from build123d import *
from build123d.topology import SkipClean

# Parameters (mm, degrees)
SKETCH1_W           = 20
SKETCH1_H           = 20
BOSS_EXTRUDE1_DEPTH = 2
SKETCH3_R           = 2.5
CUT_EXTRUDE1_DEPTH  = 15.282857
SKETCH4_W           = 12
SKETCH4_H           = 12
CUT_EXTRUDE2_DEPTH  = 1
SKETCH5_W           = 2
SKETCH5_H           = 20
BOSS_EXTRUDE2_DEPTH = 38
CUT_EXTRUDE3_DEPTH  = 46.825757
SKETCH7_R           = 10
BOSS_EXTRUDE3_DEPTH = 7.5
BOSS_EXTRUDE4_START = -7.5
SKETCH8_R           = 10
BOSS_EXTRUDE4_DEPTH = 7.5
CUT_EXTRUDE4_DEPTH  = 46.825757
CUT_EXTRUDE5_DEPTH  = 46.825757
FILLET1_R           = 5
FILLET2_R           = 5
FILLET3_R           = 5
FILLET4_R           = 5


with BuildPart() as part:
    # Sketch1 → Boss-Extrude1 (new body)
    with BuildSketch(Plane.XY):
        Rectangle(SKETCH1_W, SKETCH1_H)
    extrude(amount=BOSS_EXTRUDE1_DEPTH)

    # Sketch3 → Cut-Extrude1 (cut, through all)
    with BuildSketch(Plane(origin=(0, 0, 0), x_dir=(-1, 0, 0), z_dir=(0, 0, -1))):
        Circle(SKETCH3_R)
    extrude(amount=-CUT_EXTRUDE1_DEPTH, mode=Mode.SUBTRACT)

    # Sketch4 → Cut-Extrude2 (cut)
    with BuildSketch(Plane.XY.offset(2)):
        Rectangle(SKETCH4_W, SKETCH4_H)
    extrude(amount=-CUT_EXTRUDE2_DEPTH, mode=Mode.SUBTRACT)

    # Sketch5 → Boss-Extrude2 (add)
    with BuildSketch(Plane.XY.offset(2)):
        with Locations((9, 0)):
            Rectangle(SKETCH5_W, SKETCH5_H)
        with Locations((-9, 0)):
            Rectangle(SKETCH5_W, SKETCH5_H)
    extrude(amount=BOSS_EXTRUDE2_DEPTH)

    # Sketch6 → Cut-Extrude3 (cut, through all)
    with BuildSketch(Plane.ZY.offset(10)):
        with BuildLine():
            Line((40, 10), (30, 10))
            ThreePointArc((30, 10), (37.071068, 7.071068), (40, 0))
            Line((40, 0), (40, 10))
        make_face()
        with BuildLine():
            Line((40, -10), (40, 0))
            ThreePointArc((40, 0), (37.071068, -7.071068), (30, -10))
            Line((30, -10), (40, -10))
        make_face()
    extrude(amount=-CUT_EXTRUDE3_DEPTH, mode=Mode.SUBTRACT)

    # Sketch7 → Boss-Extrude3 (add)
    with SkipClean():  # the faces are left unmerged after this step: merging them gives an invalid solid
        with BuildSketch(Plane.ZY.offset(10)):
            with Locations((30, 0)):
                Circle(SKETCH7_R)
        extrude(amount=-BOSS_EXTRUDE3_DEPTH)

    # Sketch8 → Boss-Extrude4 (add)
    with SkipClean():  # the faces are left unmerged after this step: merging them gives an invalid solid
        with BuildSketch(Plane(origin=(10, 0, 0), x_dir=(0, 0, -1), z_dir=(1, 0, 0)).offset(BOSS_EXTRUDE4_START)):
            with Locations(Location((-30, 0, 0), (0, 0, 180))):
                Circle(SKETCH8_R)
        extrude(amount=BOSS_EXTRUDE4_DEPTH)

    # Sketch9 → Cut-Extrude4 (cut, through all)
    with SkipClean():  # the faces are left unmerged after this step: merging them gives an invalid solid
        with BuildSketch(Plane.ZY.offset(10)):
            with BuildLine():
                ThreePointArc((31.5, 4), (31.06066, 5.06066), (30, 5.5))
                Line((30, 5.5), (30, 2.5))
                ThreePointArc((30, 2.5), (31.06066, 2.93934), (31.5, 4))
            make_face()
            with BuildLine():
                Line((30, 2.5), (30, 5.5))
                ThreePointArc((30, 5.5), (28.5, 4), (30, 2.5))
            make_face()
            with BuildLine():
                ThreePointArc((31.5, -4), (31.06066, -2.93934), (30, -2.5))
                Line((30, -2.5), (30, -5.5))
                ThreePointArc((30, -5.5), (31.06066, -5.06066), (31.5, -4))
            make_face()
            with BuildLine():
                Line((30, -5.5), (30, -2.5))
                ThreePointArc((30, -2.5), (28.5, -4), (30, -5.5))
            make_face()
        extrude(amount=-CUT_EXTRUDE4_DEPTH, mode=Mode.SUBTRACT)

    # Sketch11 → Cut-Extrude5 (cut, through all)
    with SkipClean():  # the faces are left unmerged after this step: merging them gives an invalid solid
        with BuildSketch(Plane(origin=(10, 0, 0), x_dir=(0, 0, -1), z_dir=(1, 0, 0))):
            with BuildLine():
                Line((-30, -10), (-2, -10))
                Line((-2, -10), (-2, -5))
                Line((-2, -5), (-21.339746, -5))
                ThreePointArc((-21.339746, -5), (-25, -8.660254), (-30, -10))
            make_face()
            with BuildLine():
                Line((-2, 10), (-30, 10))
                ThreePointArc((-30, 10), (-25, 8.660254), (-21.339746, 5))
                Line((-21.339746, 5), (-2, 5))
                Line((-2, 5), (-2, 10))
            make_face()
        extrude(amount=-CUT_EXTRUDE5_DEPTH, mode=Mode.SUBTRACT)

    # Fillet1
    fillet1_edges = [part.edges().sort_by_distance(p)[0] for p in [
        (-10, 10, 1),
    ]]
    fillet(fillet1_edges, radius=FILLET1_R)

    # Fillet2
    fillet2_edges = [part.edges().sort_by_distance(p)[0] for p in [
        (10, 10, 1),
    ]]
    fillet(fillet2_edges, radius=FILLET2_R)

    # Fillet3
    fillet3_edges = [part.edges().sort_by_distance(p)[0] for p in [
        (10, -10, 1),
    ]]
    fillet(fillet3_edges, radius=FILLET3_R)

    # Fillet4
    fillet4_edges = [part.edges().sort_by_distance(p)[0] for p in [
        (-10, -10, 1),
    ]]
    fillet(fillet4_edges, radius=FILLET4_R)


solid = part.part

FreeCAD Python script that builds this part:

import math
import FreeCAD as App
import Part
import Sketcher


def edges_at(feature, points):
    """Names of the edges that pass closest to the given points."""
    edges = feature.Shape.Edges
    near = lambda p: min(range(len(edges)), key=lambda i: edges[i].distToShape(Part.Vertex(*p))[0])
    return sorted({f"Edge{near(p) + 1}" for p in points})


def add_polygon(sketch, points):
    """Adds a closed chain of lines whose ends are joined by coincident constraints."""
    first, n = sketch.GeometryCount, len(points)
    for a, b in zip(points, points[1:] + points[:1]):
        sketch.addGeometry(Part.LineSegment(App.Vector(*a, 0), App.Vector(*b, 0)), False)
    for i in range(n):
        sketch.addConstraint(Sketcher.Constraint("Coincident", first + i, 2, first + (i + 1) % n, 1))

doc = App.newDocument("Part")
params = doc.addObject("Spreadsheet::Sheet", "Params")
for row, (alias, value) in enumerate([
    ("sketch1_width", "20 mm"),
    ("pad1_length", "2 mm"),
    ("sketch2_diameter", "5 mm"),
    ("sketch3_width", "12 mm"),
    ("pocket2_length", "1 mm"),
    ("sketch4_width", "2 mm"),
    ("sketch4_height", "20 mm"),
    ("pad2_length", "38 mm"),
    ("sketch5_radius", "9.999999 mm"),
    ("sketch6_diameter", "20 mm"),
    ("pad3_length", "7.5 mm"),
    ("sketch7_diameter", "20 mm"),
    ("pad4_length", "7.5 mm"),
    ("sketch8_radius", "1.500001 mm"),
    ("sketch9_radius", "10 mm"),
    ("sketch9_width", "5 mm"),
    ("sketch9_height", "28 mm"),
    ("fillet_radius", "5 mm"),
    ("fillet2_radius", "5 mm"),
    ("fillet3_radius", "5 mm"),
    ("fillet4_radius", "5 mm"),
], start=1):
    params.set(f"A{row}", alias)
    params.set(f"B{row}", "=" + value)
    params.setAlias(f"B{row}", alias)

body = doc.addObject("PartDesign::Body", "Body")

# Sketch on XY plane
sketch1 = body.newObject("Sketcher::SketchObject", "Sketch")
sketch1.AttachmentSupport = (doc.getObject("XY_Plane"), [""])
sketch1.MapMode = "FlatFace"
add_polygon(sketch1, [(-10, 10), (-10, -10), (10, -10), (10, 10)])  # lines 0-3
sketch1.addConstraint([
    Sketcher.Constraint("Vertical", 0),
    Sketcher.Constraint("Horizontal", 1),
    Sketcher.Constraint("Vertical", 2),
    Sketcher.Constraint("Horizontal", 3),
    Sketcher.Constraint("Symmetric", 0, 2, 2, 2, -1, 1),
    Sketcher.Constraint("Equal", 3, 0),
    Sketcher.Constraint("DistanceX", 1, 1, 1, 2, 20.0),
])
sketch1.setExpression("Constraints[10]", "Params.sketch1_width")
pad1 = body.newObject("PartDesign::Pad", "Pad")
pad1.Profile = sketch1
pad1.setExpression("Length", "Params.pad1_length")

# Sketch on XY plane
sketch2 = body.newObject("Sketcher::SketchObject", "Sketch001")
sketch2.AttachmentSupport = (doc.getObject("XY_Plane"), [""])
sketch2.MapMode = "FlatFace"
sketch2.addGeometry(Part.Circle(App.Vector(0, 0, 0), App.Vector(0, 0, 1), 2.5), False)
sketch2.addConstraint([
    Sketcher.Constraint("Coincident", 0, 3, -1, 1),
    Sketcher.Constraint("Diameter", 0, 5.0),
])
sketch2.setExpression("Constraints[1]", "Params.sketch2_diameter")
pocket1 = body.newObject("PartDesign::Pocket", "Pocket")
pocket1.Profile = sketch2
pocket1.Type = "ThroughAll"
pocket1.Reversed = True

# Sketch on XY plane
sketch3 = body.newObject("Sketcher::SketchObject", "Sketch002")
sketch3.AttachmentSupport = (doc.getObject("XY_Plane"), [""])
sketch3.MapMode = "FlatFace"
sketch3.AttachmentOffset = App.Placement(App.Vector(0, 0, 2), App.Rotation())
add_polygon(sketch3, [(-6, 6), (-6, -6), (6, -6), (6, 6)])  # lines 0-3
sketch3.addConstraint([
    Sketcher.Constraint("Vertical", 0),
    Sketcher.Constraint("Horizontal", 1),
    Sketcher.Constraint("Vertical", 2),
    Sketcher.Constraint("Horizontal", 3),
    Sketcher.Constraint("Symmetric", 0, 2, 2, 2, -1, 1),
    Sketcher.Constraint("Equal", 3, 0),
    Sketcher.Constraint("DistanceX", 1, 1, 1, 2, 12.0),
])
sketch3.setExpression("Constraints[10]", "Params.sketch3_width")
pocket2 = body.newObject("PartDesign::Pocket", "Pocket001")
pocket2.Profile = sketch3
pocket2.setExpression("Length", "Params.pocket2_length")

# Sketch on XY plane
sketch4 = body.newObject("Sketcher::SketchObject", "Sketch003")
sketch4.AttachmentSupport = (doc.getObject("XY_Plane"), [""])
sketch4.MapMode = "FlatFace"
sketch4.AttachmentOffset = App.Placement(App.Vector(0, 0, 2), App.Rotation())
add_polygon(sketch4, [(8, 10), (8, -10), (10, -10), (10, 10)])  # lines 0-3
add_polygon(sketch4, [(-10, 10), (-10, -10), (-8, -10), (-8, 10)])  # lines 4-7
sketch4.addConstraint([
    Sketcher.Constraint("Vertical", 0),
    Sketcher.Constraint("Horizontal", 1),
    Sketcher.Constraint("Vertical", 2),
    Sketcher.Constraint("Horizontal", 3),
    Sketcher.Constraint("Vertical", 4),
    Sketcher.Constraint("Horizontal", 5),
    Sketcher.Constraint("Vertical", 6),
    Sketcher.Constraint("Horizontal", 7),
    Sketcher.Constraint("Symmetric", 2, 2, 4, 2, -1, 1),
    Sketcher.Constraint("Symmetric", 0, 2, 6, 2, -1, 1),
    Sketcher.Constraint("Horizontal", 1, 2, 4, 2),
    Sketcher.Constraint("DistanceX", 1, 1, 1, 2, 2.0),
    Sketcher.Constraint("DistanceY", 0, 2, 0, 1, 20.0),
    Sketcher.Constraint("DistanceX", -1, 1, 0, 2, 8.0),
])
sketch4.setExpression("Constraints[19]", "Params.sketch4_width")
sketch4.setExpression("Constraints[20]", "Params.sketch4_height")
pad2 = body.newObject("PartDesign::Pad", "Pad001")
pad2.Profile = sketch4
pad2.setExpression("Length", "Params.pad2_length")

# Sketch on YZ plane
sketch5 = body.newObject("Sketcher::SketchObject", "Sketch004")
sketch5.AttachmentSupport = (doc.getObject("YZ_Plane"), [""])
sketch5.MapMode = "FlatFace"
sketch5.AttachmentOffset = App.Placement(App.Vector(0, 0, -10), App.Rotation())
sketch5.addGeometry([
    Part.LineSegment(App.Vector(10, 40, 0), App.Vector(10, 30, 0)),  # 0
    Part.ArcOfCircle(Part.Circle(App.Vector(0, 30, 0), App.Vector(0, 0, 1), 10), math.radians(0), math.radians(90)),  # 1
    Part.LineSegment(App.Vector(0, 40, 0), App.Vector(10, 40, 0)),  # 2
    Part.LineSegment(App.Vector(-10, 40, 0), App.Vector(0, 40, 0)),  # 3
    Part.ArcOfCircle(Part.Circle(App.Vector(0, 30, 0), App.Vector(0, 0, 1), 10), math.radians(90), math.radians(180)),  # 4
    Part.LineSegment(App.Vector(-10, 30, 0), App.Vector(-10, 40, 0)),  # 5
], False)
sketch5.addConstraint([
    Sketcher.Constraint("Tangent", 0, 2, 1, 1),
    Sketcher.Constraint("Tangent", 1, 2, 2, 1),
    Sketcher.Constraint("Coincident", 2, 2, 0, 1),
    Sketcher.Constraint("Tangent", 3, 2, 4, 1),
    Sketcher.Constraint("Tangent", 4, 2, 5, 1),
    Sketcher.Constraint("Coincident", 5, 2, 3, 1),
    Sketcher.Constraint("Vertical", 0),
    Sketcher.Constraint("Horizontal", 2),
    Sketcher.Constraint("Horizontal", 3),
    Sketcher.Constraint("Vertical", 5),
    Sketcher.Constraint("Coincident", 4, 3, 1, 3),
    Sketcher.Constraint("Equal", 1, 4),
    Sketcher.Constraint("PointOnObject", 1, 3, -2),
    Sketcher.Constraint("Radius", 1, 9.999999),
    Sketcher.Constraint("DistanceY", -1, 1, 1, 3, 30.000001),
])
sketch5.setExpression("Constraints[13]", "Params.sketch5_radius")
pocket3 = body.newObject("PartDesign::Pocket", "Pocket002")
pocket3.Profile = sketch5
pocket3.Type = "ThroughAll"
pocket3.Reversed = True

# Sketch on YZ plane
sketch6 = body.newObject("Sketcher::SketchObject", "Sketch005")
sketch6.AttachmentSupport = (doc.getObject("YZ_Plane"), [""])
sketch6.MapMode = "FlatFace"
sketch6.AttachmentOffset = App.Placement(App.Vector(0, 0, -10), App.Rotation())
sketch6.addGeometry(Part.Circle(App.Vector(0, 30, 0), App.Vector(0, 0, 1), 10), False)
sketch6.addConstraint([
    Sketcher.Constraint("PointOnObject", 0, 3, -2),
    Sketcher.Constraint("Diameter", 0, 20.0),
    Sketcher.Constraint("DistanceY", -1, 1, 0, 3, 30.0),
])
sketch6.setExpression("Constraints[1]", "Params.sketch6_diameter")
pad3 = body.newObject("PartDesign::Pad", "Pad002")
pad3.Profile = sketch6
pad3.setExpression("Length", "Params.pad3_length")

# Sketch on YZ plane
sketch7 = body.newObject("Sketcher::SketchObject", "Sketch006")
sketch7.AttachmentSupport = (doc.getObject("YZ_Plane"), [""])
sketch7.MapMode = "FlatFace"
sketch7.AttachmentOffset = App.Placement(App.Vector(0, 0, 2.5), App.Rotation())
sketch7.addGeometry(Part.Circle(App.Vector(0, 30, 0), App.Vector(0, 0, 1), 10), False)
sketch7.addConstraint([
    Sketcher.Constraint("PointOnObject", 0, 3, -2),
    Sketcher.Constraint("Diameter", 0, 20.0),
    Sketcher.Constraint("DistanceY", -1, 1, 0, 3, 30.0),
])
sketch7.setExpression("Constraints[1]", "Params.sketch7_diameter")
pad4 = body.newObject("PartDesign::Pad", "Pad003")
pad4.Profile = sketch7
pad4.setExpression("Length", "Params.pad4_length")

# Sketch on YZ plane
sketch8 = body.newObject("Sketcher::SketchObject", "Sketch007")
sketch8.AttachmentSupport = (doc.getObject("YZ_Plane"), [""])
sketch8.MapMode = "FlatFace"
sketch8.AttachmentOffset = App.Placement(App.Vector(0, 0, -10), App.Rotation())
sketch8.addGeometry([
    Part.ArcOfCircle(Part.Circle(App.Vector(4, 30, 0), App.Vector(0, 0, 1), 1.5), math.radians(0), math.radians(90)),  # 0
    Part.LineSegment(App.Vector(5.5, 30, 0), App.Vector(2.5, 30, 0)),  # 1
    Part.ArcOfCircle(Part.Circle(App.Vector(4, 30, 0), App.Vector(0, 0, 1), 1.5), math.radians(90), math.radians(180)),  # 2
    Part.LineSegment(App.Vector(2.5, 30, 0), App.Vector(5.5, 30, 0)),  # 3
    Part.ArcOfCircle(Part.Circle(App.Vector(4, 30, 0), App.Vector(0, 0, 1), 1.5), math.radians(180), math.radians(360)),  # 4
    Part.ArcOfCircle(Part.Circle(App.Vector(-4, 30, 0), App.Vector(0, 0, 1), 1.5), math.radians(0), math.radians(90)),  # 5
    Part.LineSegment(App.Vector(-2.5, 30, 0), App.Vector(-5.5, 30, 0)),  # 6
    Part.ArcOfCircle(Part.Circle(App.Vector(-4, 30, 0), App.Vector(0, 0, 1), 1.5), math.radians(90), math.radians(180)),  # 7
    Part.LineSegment(App.Vector(-5.5, 30, 0), App.Vector(-2.5, 30, 0)),  # 8
    Part.ArcOfCircle(Part.Circle(App.Vector(-4, 30, 0), App.Vector(0, 0, 1), 1.5), math.radians(180), math.radians(360)),  # 9
], False)
sketch8.addConstraint([
    Sketcher.Constraint("Coincident", 0, 1, 1, 1),
    Sketcher.Constraint("Coincident", 1, 2, 2, 2),
    Sketcher.Constraint("Tangent", 2, 1, 0, 2),
    Sketcher.Constraint("Coincident", 3, 1, 4, 1),
    Sketcher.Constraint("Coincident", 4, 2, 3, 2),
    Sketcher.Constraint("Coincident", 5, 1, 6, 1),
    Sketcher.Constraint("Coincident", 6, 2, 7, 2),
    Sketcher.Constraint("Tangent", 7, 1, 5, 2),
    Sketcher.Constraint("Coincident", 8, 1, 9, 1),
    Sketcher.Constraint("Coincident", 9, 2, 8, 2),
    Sketcher.Constraint("Horizontal", 1),
    Sketcher.Constraint("Horizontal", 3),
    Sketcher.Constraint("Horizontal", 6),
    Sketcher.Constraint("Horizontal", 8),
    Sketcher.Constraint("Coincident", 4, 3, 0, 3),
    Sketcher.Constraint("Coincident", 9, 3, 5, 3),
    Sketcher.Constraint("Coincident", 3, 1, 1, 2),
    Sketcher.Constraint("Coincident", 8, 1, 6, 2),
    Sketcher.Constraint("Equal", 0, 2),
    Sketcher.Constraint("Equal", 4, 5),
    Sketcher.Constraint("Equal", 5, 7),
    Sketcher.Constraint("Symmetric", 0, 3, 5, 3, -2),
    Sketcher.Constraint("Horizontal", 9, 3, 0, 1),
    Sketcher.Constraint("Horizontal", 4, 2, 5, 1),
    Sketcher.Constraint("Vertical", 4, 3, 2, 1),
    Sketcher.Constraint("Vertical", 9, 3, 7, 1),
    Sketcher.Constraint("Radius", 0, 1.500001),
    Sketcher.Constraint("DistanceX", -1, 1, 0, 3, 3.999999),
    Sketcher.Constraint("DistanceY", -1, 1, 0, 3, 29.999999),
])
sketch8.setExpression("Constraints[26]", "Params.sketch8_radius")
pocket4 = body.newObject("PartDesign::Pocket", "Pocket003")
pocket4.Profile = sketch8
pocket4.Type = "ThroughAll"
pocket4.Reversed = True

# Sketch on YZ plane
sketch9 = body.newObject("Sketcher::SketchObject", "Sketch008")
sketch9.AttachmentSupport = (doc.getObject("YZ_Plane"), [""])
sketch9.MapMode = "FlatFace"
sketch9.AttachmentOffset = App.Placement(App.Vector(0, 0, 10), App.Rotation())
sketch9.addGeometry([
    Part.LineSegment(App.Vector(-10, 30, 0), App.Vector(-10, 2, 0)),  # 0
    Part.LineSegment(App.Vector(-10, 2, 0), App.Vector(-5, 2, 0)),  # 1
    Part.LineSegment(App.Vector(-5, 2, 0), App.Vector(-5, 21, 0)),  # 2
    Part.ArcOfCircle(Part.Circle(App.Vector(0, 30, 0), App.Vector(0, 0, 1), 10), math.radians(-180), math.radians(-120)),  # 3
    Part.LineSegment(App.Vector(10, 2, 0), App.Vector(10, 30, 0)),  # 4
    Part.ArcOfCircle(Part.Circle(App.Vector(0, 30, 0), App.Vector(0, 0, 1), 10), math.radians(-60), math.radians(0)),  # 5
    Part.LineSegment(App.Vector(5, 21, 0), App.Vector(5, 2, 0)),  # 6
    Part.LineSegment(App.Vector(5, 2, 0), App.Vector(10, 2, 0)),  # 7
], False)
sketch9.addConstraint([
    Sketcher.Constraint("Coincident", 0, 2, 1, 1),
    Sketcher.Constraint("Coincident", 1, 2, 2, 1),
    Sketcher.Constraint("Coincident", 2, 2, 3, 2),
    Sketcher.Constraint("Tangent", 3, 1, 0, 1),
    Sketcher.Constraint("Tangent", 4, 2, 5, 2),
    Sketcher.Constraint("Coincident", 5, 1, 6, 1),
    Sketcher.Constraint("Coincident", 6, 2, 7, 1),
    Sketcher.Constraint("Coincident", 7, 2, 4, 1),
    Sketcher.Constraint("Vertical", 0),
    Sketcher.Constraint("Horizontal", 1),
    Sketcher.Constraint("Vertical", 2),
    Sketcher.Constraint("Vertical", 4),
    Sketcher.Constraint("Vertical", 6),
    Sketcher.Constraint("Horizontal", 7),
    Sketcher.Constraint("Coincident", 5, 3, 3, 3),
    Sketcher.Constraint("Equal", 3, 5),
    Sketcher.Constraint("Symmetric", 2, 2, 5, 1, -2),
    Sketcher.Constraint("Horizontal", 1, 2, 6, 2),
    Sketcher.Constraint("Radius", 3, 10.0),
    Sketcher.Constraint("DistanceX", 1, 1, 1, 2, 5.0),
    Sketcher.Constraint("DistanceY", 0, 2, 0, 1, 28.0),
    Sketcher.Constraint("DistanceY", -1, 1, 3, 3, 30.0),
])
sketch9.setExpression("Constraints[18]", "Params.sketch9_radius")
sketch9.setExpression("Constraints[19]", "Params.sketch9_width")
sketch9.setExpression("Constraints[20]", "Params.sketch9_height")
pocket5 = body.newObject("PartDesign::Pocket", "Pocket004")
pocket5.Profile = sketch9
pocket5.Type = "ThroughAll"
doc.recompute()

fillet = body.newObject("PartDesign::Fillet", "Fillet")
fillet.Base = (pocket5, edges_at(pocket5, [(-10, 10, 1)]))
fillet.setExpression("Radius", "Params.fillet_radius")
doc.recompute()

fillet2 = body.newObject("PartDesign::Fillet", "Fillet001")
fillet2.Base = (fillet, edges_at(fillet, [(10, 10, 1)]))
fillet2.setExpression("Radius", "Params.fillet2_radius")
doc.recompute()

fillet3 = body.newObject("PartDesign::Fillet", "Fillet002")
fillet3.Base = (fillet2, edges_at(fillet2, [(10, -10, 1)]))
fillet3.setExpression("Radius", "Params.fillet3_radius")
doc.recompute()

fillet4 = body.newObject("PartDesign::Fillet", "Fillet003")
fillet4.Base = (fillet3, edges_at(fillet3, [(-10, -10, 1)]))
fillet4.setExpression("Radius", "Params.fillet4_radius")

doc.recompute()
